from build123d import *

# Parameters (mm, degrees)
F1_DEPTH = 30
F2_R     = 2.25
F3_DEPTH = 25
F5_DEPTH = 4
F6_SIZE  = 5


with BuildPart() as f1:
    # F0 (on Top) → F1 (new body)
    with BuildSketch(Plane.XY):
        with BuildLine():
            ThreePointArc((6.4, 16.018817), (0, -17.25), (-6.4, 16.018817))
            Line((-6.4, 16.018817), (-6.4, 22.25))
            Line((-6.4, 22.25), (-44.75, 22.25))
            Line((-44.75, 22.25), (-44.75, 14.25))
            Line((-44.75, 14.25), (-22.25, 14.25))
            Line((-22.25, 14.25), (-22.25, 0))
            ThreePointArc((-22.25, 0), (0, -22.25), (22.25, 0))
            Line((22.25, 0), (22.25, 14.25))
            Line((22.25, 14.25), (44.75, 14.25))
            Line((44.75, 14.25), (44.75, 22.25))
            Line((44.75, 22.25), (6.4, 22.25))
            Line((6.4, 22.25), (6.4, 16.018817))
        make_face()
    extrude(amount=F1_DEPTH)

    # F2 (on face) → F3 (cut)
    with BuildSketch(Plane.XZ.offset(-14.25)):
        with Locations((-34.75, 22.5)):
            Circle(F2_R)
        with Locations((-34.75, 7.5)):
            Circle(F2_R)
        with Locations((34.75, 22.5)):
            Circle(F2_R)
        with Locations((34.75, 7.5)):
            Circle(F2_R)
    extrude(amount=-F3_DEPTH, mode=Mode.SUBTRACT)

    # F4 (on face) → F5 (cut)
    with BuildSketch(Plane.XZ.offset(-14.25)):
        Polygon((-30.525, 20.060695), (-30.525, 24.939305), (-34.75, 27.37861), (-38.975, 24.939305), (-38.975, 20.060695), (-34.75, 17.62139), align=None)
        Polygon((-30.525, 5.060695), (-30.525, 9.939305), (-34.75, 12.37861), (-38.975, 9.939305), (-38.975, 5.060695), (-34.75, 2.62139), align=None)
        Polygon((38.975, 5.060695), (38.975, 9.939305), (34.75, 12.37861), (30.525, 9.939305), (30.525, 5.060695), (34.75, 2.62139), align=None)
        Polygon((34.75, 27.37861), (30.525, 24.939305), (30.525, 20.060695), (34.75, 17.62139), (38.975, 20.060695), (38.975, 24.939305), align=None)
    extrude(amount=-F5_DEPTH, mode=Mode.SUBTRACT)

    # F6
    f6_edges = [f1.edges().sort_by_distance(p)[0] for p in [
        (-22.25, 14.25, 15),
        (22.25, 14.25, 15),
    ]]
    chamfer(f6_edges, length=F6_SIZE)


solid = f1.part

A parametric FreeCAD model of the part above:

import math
import FreeCAD as App
import Part
import Sketcher
Q = App.Units.Quantity


def edges_at(feature, points):
    """Names of the edges that pass closest to the given points."""
    edges = feature.Shape.Edges
    near = lambda p: min(range(len(edges)), key=lambda i: edges[i].distToShape(Part.Vertex(*p))[0])
    return sorted({f"Edge{near(p) + 1}" for p in points})


def add_polygon(sketch, points):
    """Adds a closed chain of lines whose ends are joined by coincident constraints."""
    first, n = sketch.GeometryCount, len(points)
    for a, b in zip(points, points[1:] + points[:1]):
        sketch.addGeometry(Part.LineSegment(App.Vector(*a, 0), App.Vector(*b, 0)), False)
    for i in range(n):
        sketch.addConstraint(Sketcher.Constraint("Coincident", first + i, 2, first + (i + 1) % n, 1))

doc = App.newDocument("Part")
params = doc.addObject("Spreadsheet::Sheet", "Params")
for row, (alias, value) in enumerate([
    ("sketch1_height", "8 mm"),
    ("sketch1_radius", "17.25 mm"),
    ("sketch1_radius2", "22.25 mm"),
    ("sketch1_width", "22.5 mm"),
    ("sketch1_width2", "38.35 mm"),
    ("pad1_length", "30 mm"),
    ("sketch2_diameter", "4.5 mm"),
    ("pocket1_length", "25 mm"),
    ("pocket2_length", "4 mm"),
    ("chamfer_size", "5 mm"),
], start=1):
    params.set(f"A{row}", alias)
    params.set(f"B{row}", "=" + value)
    params.setAlias(f"B{row}", alias)

body = doc.addObject("PartDesign::Body", "Body")

# Sketch on XY plane
sketch1 = doc.addObject("Sketcher::SketchObject", "Sketch")
body.addObject(sketch1)
sketch1.AttachmentSupport = (doc.XY_Plane, [""])
sketch1.MapMode = "FlatFace"
sketch1.addGeometry(Part.ArcOfCircle(Part.Circle(App.Vector(0, 0, 0), App.Vector(0, 0, 1), 17), math.radians(112), math.radians(428)), False)
sketch1.addGeometry(Part.LineSegment(App.Vector(-6, 16, 0), App.Vector(-6, 22, 0)), False)
sketch1.addGeometry(Part.LineSegment(App.Vector(-6, 22, 0), App.Vector(-45, 22, 0)), False)
sketch1.addGeometry(Part.LineSegment(App.Vector(-45, 22, 0), App.Vector(-45, 14, 0)), False)
sketch1.addGeometry(Part.LineSegment(App.Vector(-45, 14, 0), App.Vector(-22, 14, 0)), False)
sketch1.addGeometry(Part.LineSegment(App.Vector(-22, 14, 0), App.Vector(-22, 0, 0)), False)
sketch1.addGeometry(Part.ArcOfCircle(Part.Circle(App.Vector(0, 0, 0), App.Vector(0, 0, 1), 22), math.radians(180), math.radians(360)), False)
sketch1.addGeometry(Part.LineSegment(App.Vector(22, 0, 0), App.Vector(22, 14, 0)), False)
sketch1.addGeometry(Part.LineSegment(App.Vector(22, 14, 0), App.Vector(45, 14, 0)), False)
sketch1.addGeometry(Part.LineSegment(App.Vector(45, 14, 0), App.Vector(45, 22, 0)), False)
sketch1.addGeometry(Part.LineSegment(App.Vector(45, 22, 0), App.Vector(6, 22, 0)), False)
sketch1.addGeometry(Part.LineSegment(App.Vector(6, 22, 0), App.Vector(6, 16, 0)), False)
sketch1.addConstraint(Sketcher.Constraint("Coincident", 0, 1, 1, 1))
sketch1.addConstraint(Sketcher.Constraint("Coincident", 1, 2, 2, 1))
sketch1.addConstraint(Sketcher.Constraint("Coincident", 2, 2, 3, 1))
sketch1.addConstraint(Sketcher.Constraint("Coincident", 3, 2, 4, 1))
sketch1.addConstraint(Sketcher.Constraint("Coincident", 4, 2, 5, 1))
sketch1.addConstraint(Sketcher.Constraint("Tangent", 5, 2, 6, 1))
sketch1.addConstraint(Sketcher.Constraint("Tangent", 6, 2, 7, 1))
sketch1.addConstraint(Sketcher.Constraint("Coincident", 7, 2, 8, 1))
sketch1.addConstraint(Sketcher.Constraint("Coincident", 8, 2, 9, 1))
sketch1.addConstraint(Sketcher.Constraint("Coincident", 9, 2, 10, 1))
sketch1.addConstraint(Sketcher.Constraint("Coincident", 10, 2, 11, 1))
sketch1.addConstraint(Sketcher.Constraint("Coincident", 11, 2, 0, 2))
sketch1.addConstraint(Sketcher.Constraint("Vertical", 1))
sketch1.addConstraint(Sketcher.Constraint("Horizontal", 2))
sketch1.addConstraint(Sketcher.Constraint("Vertical", 3))
sketch1.addConstraint(Sketcher.Constraint("Horizontal", 4))
sketch1.addConstraint(Sketcher.Constraint("Vertical", 5))
sketch1.addConstraint(Sketcher.Constraint("Vertical", 7))
sketch1.addConstraint(Sketcher.Constraint("Horizontal", 8))
sketch1.addConstraint(Sketcher.Constraint("Vertical", 9))
sketch1.addConstraint(Sketcher.Constraint("Horizontal", 10))
sketch1.addConstraint(Sketcher.Constraint("Vertical", 11))
sketch1.addConstraint(Sketcher.Constraint("Coincident", 0, 3, -1, 1))
sketch1.addConstraint(Sketcher.Constraint("Coincident", 6, 3, -1, 1))
sketch1.addConstraint(Sketcher.Constraint("Symmetric", 3, 2, 8, 2, -2))
sketch1.addConstraint(Sketcher.Constraint("Symmetric", 1, 2, 10, 2, -2))
sketch1.addConstraint(Sketcher.Constraint("DistanceY", 3, 2, 3, 1, 8.0))
sketch1.addConstraint(Sketcher.Constraint("Radius", 0, 17.25))
sketch1.addConstraint(Sketcher.Constraint("Radius", 6, 22.25))
sketch1.addConstraint(Sketcher.Constraint("DistanceX", 4, 1, 4, 2, 22.5))
sketch1.addConstraint(Sketcher.Constraint("DistanceX", 2, 2, 2, 1, 38.35))
sketch1.addConstraint(Sketcher.Constraint("DistanceY", 5, 2, 5, 1, 14.25))
sketch1.setExpression("Constraints[26]", "Params.sketch1_height")
sketch1.setExpression("Constraints[27]", "Params.sketch1_radius")
sketch1.setExpression("Constraints[28]", "Params.sketch1_radius2")
sketch1.setExpression("Constraints[29]", "Params.sketch1_width")
sketch1.setExpression("Constraints[30]", "Params.sketch1_width2")
pad1 = doc.addObject("PartDesign::Pad", "Pad")
body.addObject(pad1)
pad1.Profile = sketch1
pad1.setExpression("Length", "Params.pad1_length")

# Sketch on XZ plane
sketch2 = doc.addObject("Sketcher::SketchObject", "Sketch001")
body.addObject(sketch2)
sketch2.AttachmentSupport = (doc.XZ_Plane, [""])
sketch2.MapMode = "FlatFace"
sketch2.AttachmentOffset = App.Placement(App.Vector(0, 0, -14.25), App.Rotation())
sketch2.addGeometry(Part.Circle(App.Vector(-34.8, 22.5, 0), App.Vector(0, 0, 1), 2.2), False)
sketch2.addGeometry(Part.Circle(App.Vector(-34.8, 7.5, 0), App.Vector(0, 0, 1), 2.2), False)
sketch2.addGeometry(Part.Circle(App.Vector(34.8, 22.5, 0), App.Vector(0, 0, 1), 2.2), False)
sketch2.addGeometry(Part.Circle(App.Vector(34.8, 7.5, 0), App.Vector(0, 0, 1), 2.2), False)
sketch2.addConstraint(Sketcher.Constraint("Equal", 0, 1))
sketch2.addConstraint(Sketcher.Constraint("Equal", 1, 2))
sketch2.addConstraint(Sketcher.Constraint("Equal", 2, 3))
sketch2.addConstraint(Sketcher.Constraint("Symmetric", 0, 3, 2, 3, -2))
sketch2.addConstraint(Sketcher.Constraint("Symmetric", 1, 3, 3, 3, -2))
sketch2.addConstraint(Sketcher.Constraint("Vertical", 0, 3, 1, 3))
sketch2.addConstraint(Sketcher.Constraint("Diameter", 0, 4.5))
sketch2.addConstraint(Sketcher.Constraint("DistanceY", 1, 3, 0, 3, 15.0))
sketch2.addConstraint(Sketcher.Constraint("DistanceY", -1, 1, 0, 3, 22.5))
sketch2.addConstraint(Sketcher.Constraint("DistanceX", 0, 3, 2, 3, 69.5))
sketch2.setExpression("Constraints[6]", "Params.sketch2_diameter")
pocket1 = doc.addObject("PartDesign::Pocket", "Pocket")
body.addObject(pocket1)
pocket1.Profile = sketch2
pocket1.setExpression("Length", "Params.pocket1_length")

# Sketch on XZ plane
sketch3 = doc.addObject("Sketcher::SketchObject", "Sketch002")
body.addObject(sketch3)
sketch3.AttachmentSupport = (doc.XZ_Plane, [""])
sketch3.MapMode = "FlatFace"
sketch3.AttachmentOffset = App.Placement(App.Vector(0, 0, -14.25), App.Rotation())
add_polygon(sketch3, [(-30.5, 20.1), (-30.5, 24.9), (-34.8, 27.4), (-39, 24.9), (-39, 20.1), (-34.8, 17.6)])  # lines 0-5
add_polygon(sketch3, [(-30.5, 5.1), (-30.5, 9.9), (-34.8, 12.4), (-39, 9.9), (-39, 5.1), (-34.8, 2.6)])  # lines 6-11
add_polygon(sketch3, [(39, 5.1), (39, 9.9), (34.8, 12.4), (30.5, 9.9), (30.5, 5.1), (34.8, 2.6)])  # lines 12-17
add_polygon(sketch3, [(34.8, 27.4), (30.5, 24.9), (30.5, 20.1), (34.8, 17.6), (39, 20.1), (39, 24.9)])  # lines 18-23
sketch3.addConstraint(Sketcher.Constraint("Vertical", 0))
sketch3.addConstraint(Sketcher.Constraint("Vertical", 3))
sketch3.addConstraint(Sketcher.Constraint("Vertical", 6))
sketch3.addConstraint(Sketcher.Constraint("Vertical", 9))
sketch3.addConstraint(Sketcher.Constraint("Vertical", 12))
sketch3.addConstraint(Sketcher.Constraint("Vertical", 15))
sketch3.addConstraint(Sketcher.Constraint("Vertical", 19))
sketch3.addConstraint(Sketcher.Constraint("Vertical", 22))
sketch3.addConstraint(Sketcher.Constraint("Symmetric", 8, 2, 12, 2, -2))
sketch3.addConstraint(Sketcher.Constraint("Symmetric", 7, 2, 13, 2, -2))
sketch3.addConstraint(Sketcher.Constraint("Symmetric", 6, 2, 14, 2, -2))
sketch3.addConstraint(Sketcher.Constraint("Symmetric", 10, 2, 16, 2, -2))
sketch3.addConstraint(Sketcher.Constraint("Symmetric", 0, 2, 18, 2, -2))
sketch3.addConstraint(Sketcher.Constraint("Symmetric", 4, 2, 20, 2, -2))
sketch3.addConstraint(Sketcher.Constraint("Symmetric", 3, 2, 21, 2, -2))
sketch3.addConstraint(Sketcher.Constraint("Symmetric", 1, 2, 23, 2, -2))
sketch3.addConstraint(Sketcher.Constraint("Parallel", 1, 4))
sketch3.addConstraint(Sketcher.Constraint("Parallel", 2, 5))
sketch3.addConstraint(Sketcher.Constraint("Parallel", 4, 7))
sketch3.addConstraint(Sketcher.Constraint("Parallel", 5, 8))
sketch3.addConstraint(Sketcher.Constraint("Parallel", 7, 10))
sketch3.addConstraint(Sketcher.Constraint("Parallel", 8, 11))
sketch3.addConstraint(Sketcher.Constraint("Parallel", 10, 13))
sketch3.addConstraint(Sketcher.Constraint("Parallel", 13, 16))
sketch3.addConstraint(Sketcher.Constraint("Parallel", 14, 17))
sketch3.addConstraint(Sketcher.Constraint("Parallel", 16, 20))
sketch3.addConstraint(Sketcher.Constraint("Parallel", 20, 23))
sketch3.addConstraint(Sketcher.Constraint("Horizontal", 0, 2, 2, 2))
sketch3.addConstraint(Sketcher.Constraint("Horizontal", 3, 2, 5, 2))
sketch3.addConstraint(Sketcher.Constraint("Horizontal", 6, 2, 8, 2))
sketch3.addConstraint(Sketcher.Constraint("Horizontal", 9, 2, 11, 2))
sketch3.addConstraint(Sketcher.Constraint("Vertical", 5, 2, 6, 2))
sketch3.addConstraint(Sketcher.Constraint("Vertical", 4, 2, 7, 2))
sketch3.addConstraint(Sketcher.Constraint("Equal", 3, 6))
sketch3.addConstraint(Sketcher.Constraint("Angle", 1, Q("149.999999 deg")))
sketch3.addConstraint(Sketcher.Constraint("DistanceY", 6, 2, 0, 2, 15.0))
sketch3.addConstraint(Sketcher.Constraint("DistanceX", 6, 2, 12, 2, 69.5))
sketch3.addConstraint(Sketcher.Constraint("DistanceX", 2, 2, 0, 2, 8.45))
sketch3.addConstraint(Sketcher.Constraint("DistanceY", 0, 1, 0, 2, 4.87861))
sketch3.addConstraint(Sketcher.Constraint("DistanceY", -1, 1, 1, 2, 27.37861))
pocket2 = doc.addObject("PartDesign::Pocket", "Pocket001")
body.addObject(pocket2)
pocket2.Profile = sketch3
pocket2.setExpression("Length", "Params.pocket2_length")
doc.recompute()

chamfer = doc.addObject("PartDesign::Chamfer", "Chamfer")
body.addObject(chamfer)
chamfer.Base = (pocket2, edges_at(pocket2, [(-22.25, 14.25, 15), (22.25, 14.25, 15)]))
chamfer.setExpression("Size", "Params.chamfer_size")

doc.recompute()
